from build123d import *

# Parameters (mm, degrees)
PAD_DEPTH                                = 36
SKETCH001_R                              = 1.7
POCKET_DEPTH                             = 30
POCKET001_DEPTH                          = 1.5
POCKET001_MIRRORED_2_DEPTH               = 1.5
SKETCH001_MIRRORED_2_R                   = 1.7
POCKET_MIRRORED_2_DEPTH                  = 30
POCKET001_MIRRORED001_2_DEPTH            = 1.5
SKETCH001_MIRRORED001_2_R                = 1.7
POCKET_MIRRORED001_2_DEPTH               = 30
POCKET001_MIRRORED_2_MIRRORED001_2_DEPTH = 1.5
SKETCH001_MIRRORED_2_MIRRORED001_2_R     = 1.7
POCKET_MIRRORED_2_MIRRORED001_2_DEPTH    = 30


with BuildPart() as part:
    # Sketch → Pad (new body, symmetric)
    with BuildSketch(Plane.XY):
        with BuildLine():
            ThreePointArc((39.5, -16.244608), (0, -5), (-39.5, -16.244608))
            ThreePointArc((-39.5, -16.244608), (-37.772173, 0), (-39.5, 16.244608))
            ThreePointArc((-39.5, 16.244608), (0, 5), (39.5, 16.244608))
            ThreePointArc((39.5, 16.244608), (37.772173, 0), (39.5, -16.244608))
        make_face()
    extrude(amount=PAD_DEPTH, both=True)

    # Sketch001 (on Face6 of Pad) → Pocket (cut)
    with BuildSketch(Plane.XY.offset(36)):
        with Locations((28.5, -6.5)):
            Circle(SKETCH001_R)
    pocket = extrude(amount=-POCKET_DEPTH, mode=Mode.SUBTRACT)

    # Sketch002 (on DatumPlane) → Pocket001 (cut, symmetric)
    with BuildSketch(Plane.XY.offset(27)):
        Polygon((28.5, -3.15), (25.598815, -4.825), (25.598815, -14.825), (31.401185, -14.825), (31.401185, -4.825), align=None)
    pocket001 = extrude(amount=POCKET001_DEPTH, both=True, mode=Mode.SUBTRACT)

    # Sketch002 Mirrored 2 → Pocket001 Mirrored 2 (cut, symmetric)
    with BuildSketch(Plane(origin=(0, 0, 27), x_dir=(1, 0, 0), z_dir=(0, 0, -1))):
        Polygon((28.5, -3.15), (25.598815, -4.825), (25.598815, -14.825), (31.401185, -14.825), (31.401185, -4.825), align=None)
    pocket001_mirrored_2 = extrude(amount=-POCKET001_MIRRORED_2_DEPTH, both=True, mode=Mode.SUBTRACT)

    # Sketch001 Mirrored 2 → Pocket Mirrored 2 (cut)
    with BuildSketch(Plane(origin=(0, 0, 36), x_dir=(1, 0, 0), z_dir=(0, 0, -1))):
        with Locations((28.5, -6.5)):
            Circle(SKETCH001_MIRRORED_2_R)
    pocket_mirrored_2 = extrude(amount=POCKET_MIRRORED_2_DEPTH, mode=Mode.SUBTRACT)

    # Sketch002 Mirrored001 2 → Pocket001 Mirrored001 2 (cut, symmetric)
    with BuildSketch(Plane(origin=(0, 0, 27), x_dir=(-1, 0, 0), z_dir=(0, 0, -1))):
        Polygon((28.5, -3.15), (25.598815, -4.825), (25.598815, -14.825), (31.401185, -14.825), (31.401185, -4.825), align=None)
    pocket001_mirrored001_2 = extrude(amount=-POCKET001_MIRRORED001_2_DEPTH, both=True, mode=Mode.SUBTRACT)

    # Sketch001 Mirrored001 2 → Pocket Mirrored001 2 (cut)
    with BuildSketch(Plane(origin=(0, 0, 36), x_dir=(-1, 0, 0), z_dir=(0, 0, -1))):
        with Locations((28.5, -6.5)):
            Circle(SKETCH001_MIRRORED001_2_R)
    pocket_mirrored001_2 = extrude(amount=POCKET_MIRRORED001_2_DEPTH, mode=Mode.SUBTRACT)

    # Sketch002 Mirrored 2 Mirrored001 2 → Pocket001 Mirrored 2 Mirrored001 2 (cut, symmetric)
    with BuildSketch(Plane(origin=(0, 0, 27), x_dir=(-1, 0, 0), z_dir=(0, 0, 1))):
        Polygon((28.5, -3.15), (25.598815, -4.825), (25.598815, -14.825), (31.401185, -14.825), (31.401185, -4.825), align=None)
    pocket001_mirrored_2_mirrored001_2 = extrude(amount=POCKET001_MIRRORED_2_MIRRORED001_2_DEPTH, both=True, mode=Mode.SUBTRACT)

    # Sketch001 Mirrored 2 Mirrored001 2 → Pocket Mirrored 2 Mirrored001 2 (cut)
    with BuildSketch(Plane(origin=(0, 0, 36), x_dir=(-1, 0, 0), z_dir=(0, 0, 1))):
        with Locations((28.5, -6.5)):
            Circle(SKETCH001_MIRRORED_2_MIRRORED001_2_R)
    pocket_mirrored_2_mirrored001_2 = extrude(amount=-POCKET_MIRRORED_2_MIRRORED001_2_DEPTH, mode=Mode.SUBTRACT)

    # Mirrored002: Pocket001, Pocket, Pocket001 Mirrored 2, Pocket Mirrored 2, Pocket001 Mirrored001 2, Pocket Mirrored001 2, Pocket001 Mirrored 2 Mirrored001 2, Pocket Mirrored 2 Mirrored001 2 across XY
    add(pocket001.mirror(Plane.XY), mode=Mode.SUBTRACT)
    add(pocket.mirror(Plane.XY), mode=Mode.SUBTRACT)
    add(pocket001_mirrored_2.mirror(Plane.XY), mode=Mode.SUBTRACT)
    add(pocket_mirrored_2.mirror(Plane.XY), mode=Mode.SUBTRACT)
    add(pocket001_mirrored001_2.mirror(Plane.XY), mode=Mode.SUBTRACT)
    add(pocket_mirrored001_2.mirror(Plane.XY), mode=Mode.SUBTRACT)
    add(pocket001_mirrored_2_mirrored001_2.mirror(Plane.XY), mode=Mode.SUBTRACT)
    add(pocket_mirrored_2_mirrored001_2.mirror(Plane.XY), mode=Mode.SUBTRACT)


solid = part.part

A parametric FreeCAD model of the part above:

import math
import FreeCAD as App
import Part
import Sketcher
Q = App.Units.Quantity


def add_polygon(sketch, points):
    """Adds a closed chain of lines whose ends are joined by coincident constraints."""
    first, n = sketch.GeometryCount, len(points)
    for a, b in zip(points, points[1:] + points[:1]):
        sketch.addGeometry(Part.LineSegment(App.Vector(*a, 0), App.Vector(*b, 0)), False)
    for i in range(n):
        sketch.addConstraint(Sketcher.Constraint("Coincident", first + i, 2, first + (i + 1) % n, 1))

doc = App.newDocument("Part")
body = doc.addObject("PartDesign::Body", "Body")

# Sketch on XY plane
sketch1 = body.newObject("Sketcher::SketchObject", "Sketch")
sketch1.AttachmentSupport = (doc.getObject("XY_Plane"), [""])
sketch1.MapMode = "FlatFace"
sketch1.addGeometry([
    Part.ArcOfCircle(Part.Circle(App.Vector(0, -80, 0), App.Vector(0, 0, 1), 75), math.radians(58), math.radians(122)),
    Part.ArcOfCircle(Part.Circle(App.Vector(115, 0, 0), App.Vector(0, 0, 1), 77), math.radians(168), math.radians(192)),
    Part.ArcOfCircle(Part.Circle(App.Vector(0, 80, 0), App.Vector(0, 0, 1), 75), math.radians(-122), math.radians(-58)),
    Part.ArcOfCircle(Part.Circle(App.Vector(-115, 0, 0), App.Vector(0, 0, 1), 77), math.radians(-12), math.radians(12)),
], False)
sketch1.addConstraint([
    Sketcher.Constraint("Coincident", 0, 1, 1, 2),
    Sketcher.Constraint("Coincident", 1, 1, 2, 2),
    Sketcher.Constraint("Coincident", 2, 1, 3, 2),
    Sketcher.Constraint("Coincident", 3, 1, 0, 2),
    Sketcher.Constraint("Equal", 0, 2),
    Sketcher.Constraint("Equal", 1, 3),
    Sketcher.Constraint("Symmetric", 0, 3, 2, 3, -1, 1),
    Sketcher.Constraint("Symmetric", 1, 3, 3, 3, -1, 1),
    Sketcher.Constraint("Symmetric", 1, 1, 2, 1, -2),
    Sketcher.Constraint("Radius", 0, 75.0),
    Sketcher.Constraint("DistanceY", 0, 3, -1, 1, 80.0),
    Sketcher.Constraint("DistanceX", 2, 1, 1, 1, 79.0),
    Sketcher.Constraint("Radius", 1, 77.227835),
])
pad1 = body.newObject("PartDesign::Pad", "Pad")
pad1.Profile = sketch1
pad1.Length = 72
pad1.Midplane = True

# Sketch on XY plane
sketch2 = body.newObject("Sketcher::SketchObject", "Sketch001")
sketch2.AttachmentSupport = (doc.getObject("XY_Plane"), [""])
sketch2.MapMode = "FlatFace"
sketch2.AttachmentOffset = App.Placement(App.Vector(0, 0, 36), App.Rotation())
sketch2.addGeometry(Part.Circle(App.Vector(28.5, -6.5, 0), App.Vector(0, 0, 1), 1.7), False)
sketch2.addConstraint([
    Sketcher.Constraint("Diameter", 0, 3.4),
    Sketcher.Constraint("DistanceX", -1, 1, 0, 3, 28.5),
    Sketcher.Constraint("DistanceY", 0, 3, -1, 1, 6.5),
])
pocket1 = body.newObject("PartDesign::Pocket", "Pocket")
pocket1.Profile = sketch2
pocket1.Length = 30

# Sketch on XY plane
sketch3 = body.newObject("Sketcher::SketchObject", "Sketch002")
sketch3.AttachmentSupport = (doc.getObject("XY_Plane"), [""])
sketch3.MapMode = "FlatFace"
sketch3.AttachmentOffset = App.Placement(App.Vector(0, 0, 27), App.Rotation())
add_polygon(sketch3, [(28.5, -3.1), (25.6, -4.8), (25.6, -14.8), (31.4, -14.8), (31.4, -4.8)])  # lines 0-4
sketch3.addConstraint([
    Sketcher.Constraint("Vertical", 1),
    Sketcher.Constraint("Horizontal", 2),
    Sketcher.Constraint("Vertical", 3),
    Sketcher.Constraint("Horizontal", 0, 2, 3, 2),
    Sketcher.Constraint("Equal", 0, 4),
    Sketcher.Constraint("DistanceY", 1, 2, 1, 1, 10.0),
    Sketcher.Constraint("Angle", 0, Q("-149.999999 deg")),
    Sketcher.Constraint("DistanceX", -1, 1, 4, 2, 28.5),
    Sketcher.Constraint("Distance", 0, 3.35),
    Sketcher.Constraint("DistanceY", 4, 2, -1, 1, 3.15),
])
pocket2 = body.newObject("PartDesign::Pocket", "Pocket001")
pocket2.Profile = sketch3
pocket2.Length = 3
pocket2.Midplane = True

# Sketch on XY plane
sketch4 = body.newObject("Sketcher::SketchObject", "Sketch003")
sketch4.AttachmentSupport = (doc.getObject("XY_Plane"), [""])
sketch4.MapMode = "FlatFace"
sketch4.AttachmentOffset = App.Placement(App.Vector(0, 0, 27), App.Rotation())
add_polygon(sketch4, [(28.5, 3.1), (25.6, 4.8), (25.6, 14.8), (31.4, 14.8), (31.4, 4.8)])  # lines 0-4
sketch4.addConstraint([
    Sketcher.Constraint("Vertical", 1),
    Sketcher.Constraint("Horizontal", 2),
    Sketcher.Constraint("Vertical", 3),
    Sketcher.Constraint("Horizontal", 0, 2, 3, 2),
    Sketcher.Constraint("Equal", 0, 4),
    Sketcher.Constraint("DistanceY", 1, 1, 1, 2, 10.0),
    Sketcher.Constraint("Angle", 0, Q("149.999999 deg")),
    Sketcher.Constraint("DistanceX", -1, 1, 4, 2, 28.5),
    Sketcher.Constraint("Distance", 0, 3.35),
    Sketcher.Constraint("DistanceY", -1, 1, 4, 2, 3.15),
])
pocket3 = body.newObject("PartDesign::Pocket", "Pocket002")
pocket3.Profile = sketch4
pocket3.Length = 3
pocket3.Midplane = True

# Sketch on XY plane
sketch5 = body.newObject("Sketcher::SketchObject", "Sketch004")
sketch5.AttachmentSupport = (doc.getObject("XY_Plane"), [""])
sketch5.MapMode = "FlatFace"
sketch5.AttachmentOffset = App.Placement(App.Vector(0, 0, 36), App.Rotation())
sketch5.addGeometry(Part.Circle(App.Vector(28.5, 6.5, 0), App.Vector(0, 0, 1), 1.7), False)
sketch5.addConstraint([
    Sketcher.Constraint("Diameter", 0, 3.4),
    Sketcher.Constraint("DistanceX", -1, 1, 0, 3, 28.5),
    Sketcher.Constraint("DistanceY", -1, 1, 0, 3, 6.5),
])
pocket4 = body.newObject("PartDesign::Pocket", "Pocket003")
pocket4.Profile = sketch5
pocket4.Length = 30

# Sketch on XY plane
sketch6 = body.newObject("Sketcher::SketchObject", "Sketch005")
sketch6.AttachmentSupport = (doc.getObject("XY_Plane"), [""])
sketch6.MapMode = "FlatFace"
sketch6.AttachmentOffset = App.Placement(App.Vector(0, 0, 27), App.Rotation())
add_polygon(sketch6, [(-28.5, -3.1), (-25.6, -4.8), (-25.6, -14.8), (-31.4, -14.8), (-31.4, -4.8)])  # lines 0-4
sketch6.addConstraint([
    Sketcher.Constraint("Vertical", 1),
    Sketcher.Constraint("Horizontal", 2),
    Sketcher.Constraint("Vertical", 3),
    Sketcher.Constraint("Horizontal", 0, 2, 3, 2),
    Sketcher.Constraint("Equal", 0, 4),
    Sketcher.Constraint("DistanceY", 1, 2, 1, 1, 10.0),
    Sketcher.Constraint("Angle", 0, Q("-30.000001 deg")),
    Sketcher.Constraint("DistanceX", 4, 2, -1, 1, 28.5),
    Sketcher.Constraint("Distance", 0, 3.35),
    Sketcher.Constraint("DistanceY", 4, 2, -1, 1, 3.15),
])
pocket5 = body.newObject("PartDesign::Pocket", "Pocket004")
pocket5.Profile = sketch6
pocket5.Length = 3
pocket5.Midplane = True

# Sketch on XY plane
sketch7 = body.newObject("Sketcher::SketchObject", "Sketch006")
sketch7.AttachmentSupport = (doc.getObject("XY_Plane"), [""])
sketch7.MapMode = "FlatFace"
sketch7.AttachmentOffset = App.Placement(App.Vector(0, 0, 36), App.Rotation())
sketch7.addGeometry(Part.Circle(App.Vector(-28.5, -6.5, 0), App.Vector(0, 0, 1), 1.7), False)
sketch7.addConstraint([
    Sketcher.Constraint("Diameter", 0, 3.4),
    Sketcher.Constraint("DistanceX", 0, 3, -1, 1, 28.5),
    Sketcher.Constraint("DistanceY", 0, 3, -1, 1, 6.5),
])
pocket6 = body.newObject("PartDesign::Pocket", "Pocket005")
pocket6.Profile = sketch7
pocket6.Length = 30

# Sketch on XY plane
sketch8 = body.newObject("Sketcher::SketchObject", "Sketch007")
sketch8.AttachmentSupport = (doc.getObject("XY_Plane"), [""])
sketch8.MapMode = "FlatFace"
sketch8.AttachmentOffset = App.Placement(App.Vector(0, 0, 27), App.Rotation())
add_polygon(sketch8, [(-28.5, 3.1), (-25.6, 4.8), (-25.6, 14.8), (-31.4, 14.8), (-31.4, 4.8)])  # lines 0-4
sketch8.addConstraint([
    Sketcher.Constraint("Vertical", 1),
    Sketcher.Constraint("Horizontal", 2),
    Sketcher.Constraint("Vertical", 3),
    Sketcher.Constraint("Horizontal", 0, 2, 3, 2),
    Sketcher.Constraint("Equal", 0, 4),
    Sketcher.Constraint("DistanceY", 1, 1, 1, 2, 10.0),
    Sketcher.Constraint("Angle", 0, Q("30.000001 deg")),
    Sketcher.Constraint("DistanceX", 4, 2, -1, 1, 28.5),
    Sketcher.Constraint("Distance", 0, 3.35),
    Sketcher.Constraint("DistanceY", -1, 1, 4, 2, 3.15),
])
pocket7 = body.newObject("PartDesign::Pocket", "Pocket006")
pocket7.Profile = sketch8
pocket7.Length = 3
pocket7.Midplane = True

# Sketch on XY plane
sketch9 = body.newObject("Sketcher::SketchObject", "Sketch008")
sketch9.AttachmentSupport = (doc.getObject("XY_Plane"), [""])
sketch9.MapMode = "FlatFace"
sketch9.AttachmentOffset = App.Placement(App.Vector(0, 0, 36), App.Rotation())
sketch9.addGeometry(Part.Circle(App.Vector(-28.5, 6.5, 0), App.Vector(0, 0, 1), 1.7), False)
sketch9.addConstraint([
    Sketcher.Constraint("Diameter", 0, 3.4),
    Sketcher.Constraint("DistanceX", 0, 3, -1, 1, 28.5),
    Sketcher.Constraint("DistanceY", -1, 1, 0, 3, 6.5),
])
pocket8 = body.newObject("PartDesign::Pocket", "Pocket007")
pocket8.Profile = sketch9
pocket8.Length = 30
doc.recompute()

mirrored = body.newObject("PartDesign::Mirrored", "Mirrored")
mirrored.Originals = [pocket2, pocket1, pocket3, pocket4, pocket5, pocket6, pocket7, pocket8]
mirrored.MirrorPlane = (doc.getObject("XY_Plane"), [""])
body.Tip = mirrored

doc.recompute()
